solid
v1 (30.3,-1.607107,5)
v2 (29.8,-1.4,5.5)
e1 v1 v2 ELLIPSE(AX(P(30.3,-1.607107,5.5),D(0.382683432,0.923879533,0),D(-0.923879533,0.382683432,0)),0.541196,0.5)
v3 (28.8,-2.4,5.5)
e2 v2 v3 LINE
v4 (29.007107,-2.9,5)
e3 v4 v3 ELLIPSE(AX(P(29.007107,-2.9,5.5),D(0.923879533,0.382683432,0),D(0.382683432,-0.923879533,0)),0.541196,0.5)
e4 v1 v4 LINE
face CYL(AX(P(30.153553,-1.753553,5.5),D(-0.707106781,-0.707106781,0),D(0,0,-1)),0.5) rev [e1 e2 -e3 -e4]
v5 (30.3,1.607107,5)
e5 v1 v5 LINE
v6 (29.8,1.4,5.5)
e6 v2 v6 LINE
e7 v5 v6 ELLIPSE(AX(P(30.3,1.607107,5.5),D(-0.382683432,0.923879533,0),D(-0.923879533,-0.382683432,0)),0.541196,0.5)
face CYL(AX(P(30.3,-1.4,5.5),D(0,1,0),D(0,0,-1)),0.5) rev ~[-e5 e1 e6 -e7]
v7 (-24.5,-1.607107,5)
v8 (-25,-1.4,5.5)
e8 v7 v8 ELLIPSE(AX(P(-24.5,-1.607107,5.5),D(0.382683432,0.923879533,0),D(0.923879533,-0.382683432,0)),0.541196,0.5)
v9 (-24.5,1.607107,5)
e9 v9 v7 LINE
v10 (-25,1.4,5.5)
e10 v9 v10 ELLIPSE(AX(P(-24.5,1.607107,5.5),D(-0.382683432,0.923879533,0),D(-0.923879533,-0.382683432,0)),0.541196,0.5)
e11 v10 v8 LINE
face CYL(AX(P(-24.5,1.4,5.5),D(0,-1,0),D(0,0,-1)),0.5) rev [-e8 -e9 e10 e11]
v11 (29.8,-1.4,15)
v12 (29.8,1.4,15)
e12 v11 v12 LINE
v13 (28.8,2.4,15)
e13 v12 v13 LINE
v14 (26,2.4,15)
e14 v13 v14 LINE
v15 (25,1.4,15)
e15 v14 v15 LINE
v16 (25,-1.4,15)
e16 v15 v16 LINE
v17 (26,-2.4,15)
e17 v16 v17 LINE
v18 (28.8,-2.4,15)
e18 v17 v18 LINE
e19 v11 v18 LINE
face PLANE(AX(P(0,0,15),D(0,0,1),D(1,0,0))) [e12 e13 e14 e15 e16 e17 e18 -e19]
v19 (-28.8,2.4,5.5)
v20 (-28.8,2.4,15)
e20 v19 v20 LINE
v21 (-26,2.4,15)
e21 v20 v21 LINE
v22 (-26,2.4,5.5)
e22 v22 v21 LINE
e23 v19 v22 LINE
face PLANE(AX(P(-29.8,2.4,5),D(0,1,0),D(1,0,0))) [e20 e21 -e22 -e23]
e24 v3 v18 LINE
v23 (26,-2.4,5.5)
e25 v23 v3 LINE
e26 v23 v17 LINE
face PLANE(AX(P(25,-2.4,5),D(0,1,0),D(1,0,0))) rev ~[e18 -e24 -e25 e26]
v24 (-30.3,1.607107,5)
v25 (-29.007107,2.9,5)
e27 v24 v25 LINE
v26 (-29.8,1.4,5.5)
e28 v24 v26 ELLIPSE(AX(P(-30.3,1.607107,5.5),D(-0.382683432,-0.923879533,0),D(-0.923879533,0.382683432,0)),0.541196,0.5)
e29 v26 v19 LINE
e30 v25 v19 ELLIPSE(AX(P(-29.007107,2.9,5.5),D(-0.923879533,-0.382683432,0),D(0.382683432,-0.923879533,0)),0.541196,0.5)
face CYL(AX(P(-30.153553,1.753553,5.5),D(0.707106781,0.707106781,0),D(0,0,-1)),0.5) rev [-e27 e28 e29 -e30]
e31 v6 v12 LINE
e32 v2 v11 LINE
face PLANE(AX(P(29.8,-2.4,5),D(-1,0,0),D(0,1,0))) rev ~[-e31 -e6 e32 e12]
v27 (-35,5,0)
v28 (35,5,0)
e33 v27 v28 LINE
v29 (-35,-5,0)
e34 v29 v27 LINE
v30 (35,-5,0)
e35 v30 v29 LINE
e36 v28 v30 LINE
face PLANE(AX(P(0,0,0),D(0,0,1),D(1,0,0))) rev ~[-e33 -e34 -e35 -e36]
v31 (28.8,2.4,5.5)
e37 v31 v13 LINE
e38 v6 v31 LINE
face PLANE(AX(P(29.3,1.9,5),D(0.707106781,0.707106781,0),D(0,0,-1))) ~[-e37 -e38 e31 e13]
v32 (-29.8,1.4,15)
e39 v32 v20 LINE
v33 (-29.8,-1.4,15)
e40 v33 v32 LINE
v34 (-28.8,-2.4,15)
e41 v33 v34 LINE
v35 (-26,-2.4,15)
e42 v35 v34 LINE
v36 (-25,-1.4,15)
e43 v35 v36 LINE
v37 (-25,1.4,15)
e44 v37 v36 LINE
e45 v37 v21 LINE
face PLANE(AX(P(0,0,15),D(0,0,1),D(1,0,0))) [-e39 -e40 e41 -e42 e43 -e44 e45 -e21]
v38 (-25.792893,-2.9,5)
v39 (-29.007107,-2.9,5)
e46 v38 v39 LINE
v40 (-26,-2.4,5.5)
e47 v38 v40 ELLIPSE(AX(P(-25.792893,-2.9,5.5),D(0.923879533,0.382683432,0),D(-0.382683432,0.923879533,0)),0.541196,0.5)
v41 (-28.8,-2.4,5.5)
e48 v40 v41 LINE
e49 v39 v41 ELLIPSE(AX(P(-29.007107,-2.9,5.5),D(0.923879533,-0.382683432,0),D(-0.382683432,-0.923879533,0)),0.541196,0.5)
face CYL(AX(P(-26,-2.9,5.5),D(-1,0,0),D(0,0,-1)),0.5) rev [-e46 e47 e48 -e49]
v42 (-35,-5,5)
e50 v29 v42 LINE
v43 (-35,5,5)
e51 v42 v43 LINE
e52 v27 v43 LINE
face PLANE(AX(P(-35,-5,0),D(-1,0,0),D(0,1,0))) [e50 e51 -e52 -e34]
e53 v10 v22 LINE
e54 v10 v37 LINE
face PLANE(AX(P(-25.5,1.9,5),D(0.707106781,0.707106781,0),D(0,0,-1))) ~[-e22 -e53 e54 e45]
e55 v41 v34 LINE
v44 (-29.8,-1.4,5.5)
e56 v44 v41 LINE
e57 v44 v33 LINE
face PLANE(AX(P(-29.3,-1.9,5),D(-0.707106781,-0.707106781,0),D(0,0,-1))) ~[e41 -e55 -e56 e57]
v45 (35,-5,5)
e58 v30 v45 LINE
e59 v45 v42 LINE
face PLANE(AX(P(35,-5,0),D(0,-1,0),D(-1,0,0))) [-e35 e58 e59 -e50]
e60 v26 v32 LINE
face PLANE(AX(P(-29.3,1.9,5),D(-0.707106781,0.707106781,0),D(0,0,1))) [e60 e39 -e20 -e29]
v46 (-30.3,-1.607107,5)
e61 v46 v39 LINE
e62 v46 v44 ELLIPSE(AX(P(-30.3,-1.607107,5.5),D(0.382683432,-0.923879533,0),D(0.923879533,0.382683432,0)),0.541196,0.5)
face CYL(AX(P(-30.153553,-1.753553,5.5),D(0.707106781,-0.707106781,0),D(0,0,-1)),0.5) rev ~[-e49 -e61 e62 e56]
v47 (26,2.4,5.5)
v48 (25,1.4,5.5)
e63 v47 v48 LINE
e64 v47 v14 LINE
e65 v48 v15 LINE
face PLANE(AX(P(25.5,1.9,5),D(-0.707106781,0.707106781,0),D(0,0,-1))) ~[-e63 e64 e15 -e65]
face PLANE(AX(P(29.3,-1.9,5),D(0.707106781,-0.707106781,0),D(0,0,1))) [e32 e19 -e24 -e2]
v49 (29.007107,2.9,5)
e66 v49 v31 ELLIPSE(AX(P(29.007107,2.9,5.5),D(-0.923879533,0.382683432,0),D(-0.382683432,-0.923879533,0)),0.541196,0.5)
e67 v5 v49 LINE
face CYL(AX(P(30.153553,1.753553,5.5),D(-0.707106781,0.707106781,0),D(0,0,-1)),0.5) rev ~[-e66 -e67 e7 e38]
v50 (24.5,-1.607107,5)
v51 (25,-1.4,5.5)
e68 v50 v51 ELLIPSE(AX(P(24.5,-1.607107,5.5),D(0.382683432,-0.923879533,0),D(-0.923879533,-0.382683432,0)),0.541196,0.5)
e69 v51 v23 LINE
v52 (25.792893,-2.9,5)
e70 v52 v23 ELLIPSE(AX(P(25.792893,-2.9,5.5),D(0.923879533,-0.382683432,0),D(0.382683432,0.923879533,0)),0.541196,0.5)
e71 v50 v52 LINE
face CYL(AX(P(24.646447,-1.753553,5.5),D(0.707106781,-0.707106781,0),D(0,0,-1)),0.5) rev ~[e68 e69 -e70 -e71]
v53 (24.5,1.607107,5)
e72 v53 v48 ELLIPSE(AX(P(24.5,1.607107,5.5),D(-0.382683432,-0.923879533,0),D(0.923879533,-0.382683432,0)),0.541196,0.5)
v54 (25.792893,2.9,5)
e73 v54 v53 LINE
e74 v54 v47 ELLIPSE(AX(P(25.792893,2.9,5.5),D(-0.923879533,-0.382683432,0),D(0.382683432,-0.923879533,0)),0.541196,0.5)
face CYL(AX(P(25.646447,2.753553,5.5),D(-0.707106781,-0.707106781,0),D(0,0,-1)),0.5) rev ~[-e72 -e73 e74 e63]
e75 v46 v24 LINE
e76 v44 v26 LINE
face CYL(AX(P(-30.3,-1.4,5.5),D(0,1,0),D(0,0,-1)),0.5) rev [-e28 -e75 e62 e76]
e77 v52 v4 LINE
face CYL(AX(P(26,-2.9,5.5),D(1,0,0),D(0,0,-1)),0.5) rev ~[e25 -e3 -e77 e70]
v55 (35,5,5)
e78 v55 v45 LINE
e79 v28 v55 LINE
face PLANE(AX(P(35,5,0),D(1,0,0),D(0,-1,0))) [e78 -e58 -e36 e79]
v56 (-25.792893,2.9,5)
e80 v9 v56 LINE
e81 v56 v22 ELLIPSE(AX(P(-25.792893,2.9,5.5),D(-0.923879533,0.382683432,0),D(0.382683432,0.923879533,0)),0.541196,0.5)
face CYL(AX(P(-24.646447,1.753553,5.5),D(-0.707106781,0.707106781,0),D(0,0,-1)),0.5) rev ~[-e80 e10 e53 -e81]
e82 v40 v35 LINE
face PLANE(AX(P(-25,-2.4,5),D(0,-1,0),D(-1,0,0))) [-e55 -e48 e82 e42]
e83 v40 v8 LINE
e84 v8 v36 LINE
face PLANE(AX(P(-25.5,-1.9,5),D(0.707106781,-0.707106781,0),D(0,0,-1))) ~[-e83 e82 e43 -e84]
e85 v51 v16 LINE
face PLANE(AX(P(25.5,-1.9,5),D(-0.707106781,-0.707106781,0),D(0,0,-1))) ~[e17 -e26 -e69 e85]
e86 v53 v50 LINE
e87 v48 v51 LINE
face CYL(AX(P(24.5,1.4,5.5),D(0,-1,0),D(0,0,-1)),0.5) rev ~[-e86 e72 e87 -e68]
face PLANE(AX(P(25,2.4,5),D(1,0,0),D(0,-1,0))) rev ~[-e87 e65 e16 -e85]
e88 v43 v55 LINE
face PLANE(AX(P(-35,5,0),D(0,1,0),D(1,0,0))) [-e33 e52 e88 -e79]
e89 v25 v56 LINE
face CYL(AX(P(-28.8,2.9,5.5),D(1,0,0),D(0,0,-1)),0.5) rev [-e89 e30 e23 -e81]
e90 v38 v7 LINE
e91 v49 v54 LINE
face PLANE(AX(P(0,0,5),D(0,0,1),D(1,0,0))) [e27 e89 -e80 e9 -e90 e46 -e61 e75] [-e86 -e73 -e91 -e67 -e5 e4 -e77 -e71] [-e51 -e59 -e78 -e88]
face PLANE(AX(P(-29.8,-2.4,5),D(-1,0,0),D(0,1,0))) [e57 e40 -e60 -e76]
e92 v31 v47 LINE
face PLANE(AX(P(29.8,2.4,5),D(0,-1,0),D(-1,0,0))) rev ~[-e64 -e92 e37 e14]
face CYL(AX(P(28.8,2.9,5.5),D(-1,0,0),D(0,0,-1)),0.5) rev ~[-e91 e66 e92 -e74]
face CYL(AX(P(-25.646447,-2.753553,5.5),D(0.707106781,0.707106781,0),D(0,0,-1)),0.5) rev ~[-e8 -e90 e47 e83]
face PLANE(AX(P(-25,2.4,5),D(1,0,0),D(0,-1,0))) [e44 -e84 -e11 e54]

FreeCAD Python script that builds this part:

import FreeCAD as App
import Part
import Sketcher
from FreeCAD import Vector


def edges_at(feature, points):
    """Names of the edges that pass closest to the given points."""
    edges = feature.Shape.Edges
    near = lambda p: min(range(len(edges)), key=lambda i: edges[i].distToShape(Part.Vertex(*p))[0])
    return sorted({f"Edge{near(p) + 1}" for p in points})

doc = App.newDocument("Part")
body = doc.addObject("PartDesign::Body", "Body")

# Sketch on XY plane
sketch1 = body.newObject("Sketcher::SketchObject", "Sketch")
sketch1.AttachmentSupport = (doc.getObject("XY_Plane"), [""])
sketch1.MapMode = "FlatFace"
sketch1.addGeometry([
    Part.LineSegment(Vector(35, 5, 0), Vector(-35, 5, 0)),
    Part.LineSegment(Vector(-35, 5, 0), Vector(-35, -5, 0)),
    Part.LineSegment(Vector(-35, -5, 0), Vector(35, -5, 0)),
    Part.LineSegment(Vector(35, -5, 0), Vector(35, 5, 0)),
], False)
sketch1.addConstraint([
    Sketcher.Constraint("Coincident", 0, 2, 1, 1),
    Sketcher.Constraint("Coincident", 1, 2, 2, 1),
    Sketcher.Constraint("Coincident", 2, 2, 3, 1),
    Sketcher.Constraint("Coincident", 3, 2, 0, 1),
    Sketcher.Constraint("Horizontal", 0),
    Sketcher.Constraint("Vertical", 1),
    Sketcher.Constraint("Horizontal", 2),
    Sketcher.Constraint("Vertical", 3),
    Sketcher.Constraint("Symmetric", 0, 2, 2, 2, -1, 1),
    Sketcher.Constraint("DistanceX", 0, 2, 0, 1, 70.0),
    Sketcher.Constraint("DistanceY", 1, 2, 1, 1, 10.0),
])
pad1 = body.newObject("PartDesign::Pad", "Pad")
pad1.Profile = sketch1
pad1.Length = 5

# Sketch on XY plane
sketch2 = body.newObject("Sketcher::SketchObject", "Sketch001")
sketch2.AttachmentSupport = (doc.getObject("XY_Plane"), [""])
sketch2.MapMode = "FlatFace"
sketch2.AttachmentOffset = App.Placement(Vector(0, 0, 5), App.Rotation())
sketch2.addGeometry([
    Part.LineSegment(Vector(-25, 2.4, 0), Vector(-29.8, 2.4, 0)),  # 0
    Part.LineSegment(Vector(-29.8, 2.4, 0), Vector(-29.8, -2.4, 0)),  # 1
    Part.LineSegment(Vector(-29.8, -2.4, 0), Vector(-25, -2.4, 0)),  # 2
    Part.LineSegment(Vector(-25, -2.4, 0), Vector(-25, 2.4, 0)),  # 3
    Part.LineSegment(Vector(29.8, -2.4, 0), Vector(29.8, 2.4, 0)),  # 4
    Part.LineSegment(Vector(29.8, 2.4, 0), Vector(25, 2.4, 0)),  # 5
    Part.LineSegment(Vector(25, 2.4, 0), Vector(25, -2.4, 0)),  # 6
    Part.LineSegment(Vector(25, -2.4, 0), Vector(29.8, -2.4, 0)),  # 7
], False)
sketch2.addConstraint([
    Sketcher.Constraint("Coincident", 0, 2, 1, 1),
    Sketcher.Constraint("Coincident", 1, 2, 2, 1),
    Sketcher.Constraint("Coincident", 2, 2, 3, 1),
    Sketcher.Constraint("Coincident", 3, 2, 0, 1),
    Sketcher.Constraint("Coincident", 4, 2, 5, 1),
    Sketcher.Constraint("Coincident", 5, 2, 6, 1),
    Sketcher.Constraint("Coincident", 6, 2, 7, 1),
    Sketcher.Constraint("Coincident", 7, 2, 4, 1),
    Sketcher.Constraint("Horizontal", 0),
    Sketcher.Constraint("Vertical", 1),
    Sketcher.Constraint("Horizontal", 2),
    Sketcher.Constraint("Vertical", 3),
    Sketcher.Constraint("Vertical", 4),
    Sketcher.Constraint("Horizontal", 5),
    Sketcher.Constraint("Vertical", 6),
    Sketcher.Constraint("Horizontal", 7),
    Sketcher.Constraint("Symmetric", 1, 2, 4, 2, -1, 1),
    Sketcher.Constraint("Symmetric", 3, 2, 6, 2, -1, 1),
    Sketcher.Constraint("Horizontal", 3, 2, 4, 2),
    Sketcher.Constraint("Equal", 7, 1),
    Sketcher.Constraint("DistanceX", 0, 2, 0, 1, 4.8),
    Sketcher.Constraint("DistanceX", 2, 2, -1, 1, 25.0),
])
pad2 = body.newObject("PartDesign::Pad", "Pad001")
pad2.Profile = sketch2
pad2.Length = 10
doc.recompute()

chamfer = body.newObject("PartDesign::Chamfer", "Chamfer")
chamfer.Base = (pad2, edges_at(pad2, [
    (-29.8, 2.4, 10),
    (-25, 2.4, 10),
    (-29.8, -2.4, 10),
    (-25, -2.4, 10),
    (25, 2.4, 10),
    (29.8, 2.4, 10),
    (29.8, -2.4, 10),
    (25, -2.4, 10),
]))
chamfer.Size = 1
doc.recompute()

fillet = body.newObject("PartDesign::Fillet", "Fillet")
fillet.Base = (chamfer, edges_at(chamfer, [
    (-27.4, 2.4, 5),
    (-25.5, 1.9, 5),
    (-25, 0, 5),
    (-25.5, -1.9, 5),
    (-27.4, -2.4, 5),
    (-29.3, -1.9, 5),
    (-29.8, 0, 5),
    (-29.3, 1.9, 5),
]))
fillet.Radius = 0.5
doc.recompute()

fillet2 = body.newObject("PartDesign::Fillet", "Fillet001")
fillet2.Base = (fillet, edges_at(fillet, [
    (25, 0, 5),
    (25.5, 1.9, 5),
    (27.4, 2.4, 5),
    (29.3, 1.9, 5),
    (29.8, 0, 5),
    (29.3, -1.9, 5),
    (27.4, -2.4, 5),
    (25.5, -1.9, 5),
]))
fillet2.Radius = 0.5

doc.recompute()
